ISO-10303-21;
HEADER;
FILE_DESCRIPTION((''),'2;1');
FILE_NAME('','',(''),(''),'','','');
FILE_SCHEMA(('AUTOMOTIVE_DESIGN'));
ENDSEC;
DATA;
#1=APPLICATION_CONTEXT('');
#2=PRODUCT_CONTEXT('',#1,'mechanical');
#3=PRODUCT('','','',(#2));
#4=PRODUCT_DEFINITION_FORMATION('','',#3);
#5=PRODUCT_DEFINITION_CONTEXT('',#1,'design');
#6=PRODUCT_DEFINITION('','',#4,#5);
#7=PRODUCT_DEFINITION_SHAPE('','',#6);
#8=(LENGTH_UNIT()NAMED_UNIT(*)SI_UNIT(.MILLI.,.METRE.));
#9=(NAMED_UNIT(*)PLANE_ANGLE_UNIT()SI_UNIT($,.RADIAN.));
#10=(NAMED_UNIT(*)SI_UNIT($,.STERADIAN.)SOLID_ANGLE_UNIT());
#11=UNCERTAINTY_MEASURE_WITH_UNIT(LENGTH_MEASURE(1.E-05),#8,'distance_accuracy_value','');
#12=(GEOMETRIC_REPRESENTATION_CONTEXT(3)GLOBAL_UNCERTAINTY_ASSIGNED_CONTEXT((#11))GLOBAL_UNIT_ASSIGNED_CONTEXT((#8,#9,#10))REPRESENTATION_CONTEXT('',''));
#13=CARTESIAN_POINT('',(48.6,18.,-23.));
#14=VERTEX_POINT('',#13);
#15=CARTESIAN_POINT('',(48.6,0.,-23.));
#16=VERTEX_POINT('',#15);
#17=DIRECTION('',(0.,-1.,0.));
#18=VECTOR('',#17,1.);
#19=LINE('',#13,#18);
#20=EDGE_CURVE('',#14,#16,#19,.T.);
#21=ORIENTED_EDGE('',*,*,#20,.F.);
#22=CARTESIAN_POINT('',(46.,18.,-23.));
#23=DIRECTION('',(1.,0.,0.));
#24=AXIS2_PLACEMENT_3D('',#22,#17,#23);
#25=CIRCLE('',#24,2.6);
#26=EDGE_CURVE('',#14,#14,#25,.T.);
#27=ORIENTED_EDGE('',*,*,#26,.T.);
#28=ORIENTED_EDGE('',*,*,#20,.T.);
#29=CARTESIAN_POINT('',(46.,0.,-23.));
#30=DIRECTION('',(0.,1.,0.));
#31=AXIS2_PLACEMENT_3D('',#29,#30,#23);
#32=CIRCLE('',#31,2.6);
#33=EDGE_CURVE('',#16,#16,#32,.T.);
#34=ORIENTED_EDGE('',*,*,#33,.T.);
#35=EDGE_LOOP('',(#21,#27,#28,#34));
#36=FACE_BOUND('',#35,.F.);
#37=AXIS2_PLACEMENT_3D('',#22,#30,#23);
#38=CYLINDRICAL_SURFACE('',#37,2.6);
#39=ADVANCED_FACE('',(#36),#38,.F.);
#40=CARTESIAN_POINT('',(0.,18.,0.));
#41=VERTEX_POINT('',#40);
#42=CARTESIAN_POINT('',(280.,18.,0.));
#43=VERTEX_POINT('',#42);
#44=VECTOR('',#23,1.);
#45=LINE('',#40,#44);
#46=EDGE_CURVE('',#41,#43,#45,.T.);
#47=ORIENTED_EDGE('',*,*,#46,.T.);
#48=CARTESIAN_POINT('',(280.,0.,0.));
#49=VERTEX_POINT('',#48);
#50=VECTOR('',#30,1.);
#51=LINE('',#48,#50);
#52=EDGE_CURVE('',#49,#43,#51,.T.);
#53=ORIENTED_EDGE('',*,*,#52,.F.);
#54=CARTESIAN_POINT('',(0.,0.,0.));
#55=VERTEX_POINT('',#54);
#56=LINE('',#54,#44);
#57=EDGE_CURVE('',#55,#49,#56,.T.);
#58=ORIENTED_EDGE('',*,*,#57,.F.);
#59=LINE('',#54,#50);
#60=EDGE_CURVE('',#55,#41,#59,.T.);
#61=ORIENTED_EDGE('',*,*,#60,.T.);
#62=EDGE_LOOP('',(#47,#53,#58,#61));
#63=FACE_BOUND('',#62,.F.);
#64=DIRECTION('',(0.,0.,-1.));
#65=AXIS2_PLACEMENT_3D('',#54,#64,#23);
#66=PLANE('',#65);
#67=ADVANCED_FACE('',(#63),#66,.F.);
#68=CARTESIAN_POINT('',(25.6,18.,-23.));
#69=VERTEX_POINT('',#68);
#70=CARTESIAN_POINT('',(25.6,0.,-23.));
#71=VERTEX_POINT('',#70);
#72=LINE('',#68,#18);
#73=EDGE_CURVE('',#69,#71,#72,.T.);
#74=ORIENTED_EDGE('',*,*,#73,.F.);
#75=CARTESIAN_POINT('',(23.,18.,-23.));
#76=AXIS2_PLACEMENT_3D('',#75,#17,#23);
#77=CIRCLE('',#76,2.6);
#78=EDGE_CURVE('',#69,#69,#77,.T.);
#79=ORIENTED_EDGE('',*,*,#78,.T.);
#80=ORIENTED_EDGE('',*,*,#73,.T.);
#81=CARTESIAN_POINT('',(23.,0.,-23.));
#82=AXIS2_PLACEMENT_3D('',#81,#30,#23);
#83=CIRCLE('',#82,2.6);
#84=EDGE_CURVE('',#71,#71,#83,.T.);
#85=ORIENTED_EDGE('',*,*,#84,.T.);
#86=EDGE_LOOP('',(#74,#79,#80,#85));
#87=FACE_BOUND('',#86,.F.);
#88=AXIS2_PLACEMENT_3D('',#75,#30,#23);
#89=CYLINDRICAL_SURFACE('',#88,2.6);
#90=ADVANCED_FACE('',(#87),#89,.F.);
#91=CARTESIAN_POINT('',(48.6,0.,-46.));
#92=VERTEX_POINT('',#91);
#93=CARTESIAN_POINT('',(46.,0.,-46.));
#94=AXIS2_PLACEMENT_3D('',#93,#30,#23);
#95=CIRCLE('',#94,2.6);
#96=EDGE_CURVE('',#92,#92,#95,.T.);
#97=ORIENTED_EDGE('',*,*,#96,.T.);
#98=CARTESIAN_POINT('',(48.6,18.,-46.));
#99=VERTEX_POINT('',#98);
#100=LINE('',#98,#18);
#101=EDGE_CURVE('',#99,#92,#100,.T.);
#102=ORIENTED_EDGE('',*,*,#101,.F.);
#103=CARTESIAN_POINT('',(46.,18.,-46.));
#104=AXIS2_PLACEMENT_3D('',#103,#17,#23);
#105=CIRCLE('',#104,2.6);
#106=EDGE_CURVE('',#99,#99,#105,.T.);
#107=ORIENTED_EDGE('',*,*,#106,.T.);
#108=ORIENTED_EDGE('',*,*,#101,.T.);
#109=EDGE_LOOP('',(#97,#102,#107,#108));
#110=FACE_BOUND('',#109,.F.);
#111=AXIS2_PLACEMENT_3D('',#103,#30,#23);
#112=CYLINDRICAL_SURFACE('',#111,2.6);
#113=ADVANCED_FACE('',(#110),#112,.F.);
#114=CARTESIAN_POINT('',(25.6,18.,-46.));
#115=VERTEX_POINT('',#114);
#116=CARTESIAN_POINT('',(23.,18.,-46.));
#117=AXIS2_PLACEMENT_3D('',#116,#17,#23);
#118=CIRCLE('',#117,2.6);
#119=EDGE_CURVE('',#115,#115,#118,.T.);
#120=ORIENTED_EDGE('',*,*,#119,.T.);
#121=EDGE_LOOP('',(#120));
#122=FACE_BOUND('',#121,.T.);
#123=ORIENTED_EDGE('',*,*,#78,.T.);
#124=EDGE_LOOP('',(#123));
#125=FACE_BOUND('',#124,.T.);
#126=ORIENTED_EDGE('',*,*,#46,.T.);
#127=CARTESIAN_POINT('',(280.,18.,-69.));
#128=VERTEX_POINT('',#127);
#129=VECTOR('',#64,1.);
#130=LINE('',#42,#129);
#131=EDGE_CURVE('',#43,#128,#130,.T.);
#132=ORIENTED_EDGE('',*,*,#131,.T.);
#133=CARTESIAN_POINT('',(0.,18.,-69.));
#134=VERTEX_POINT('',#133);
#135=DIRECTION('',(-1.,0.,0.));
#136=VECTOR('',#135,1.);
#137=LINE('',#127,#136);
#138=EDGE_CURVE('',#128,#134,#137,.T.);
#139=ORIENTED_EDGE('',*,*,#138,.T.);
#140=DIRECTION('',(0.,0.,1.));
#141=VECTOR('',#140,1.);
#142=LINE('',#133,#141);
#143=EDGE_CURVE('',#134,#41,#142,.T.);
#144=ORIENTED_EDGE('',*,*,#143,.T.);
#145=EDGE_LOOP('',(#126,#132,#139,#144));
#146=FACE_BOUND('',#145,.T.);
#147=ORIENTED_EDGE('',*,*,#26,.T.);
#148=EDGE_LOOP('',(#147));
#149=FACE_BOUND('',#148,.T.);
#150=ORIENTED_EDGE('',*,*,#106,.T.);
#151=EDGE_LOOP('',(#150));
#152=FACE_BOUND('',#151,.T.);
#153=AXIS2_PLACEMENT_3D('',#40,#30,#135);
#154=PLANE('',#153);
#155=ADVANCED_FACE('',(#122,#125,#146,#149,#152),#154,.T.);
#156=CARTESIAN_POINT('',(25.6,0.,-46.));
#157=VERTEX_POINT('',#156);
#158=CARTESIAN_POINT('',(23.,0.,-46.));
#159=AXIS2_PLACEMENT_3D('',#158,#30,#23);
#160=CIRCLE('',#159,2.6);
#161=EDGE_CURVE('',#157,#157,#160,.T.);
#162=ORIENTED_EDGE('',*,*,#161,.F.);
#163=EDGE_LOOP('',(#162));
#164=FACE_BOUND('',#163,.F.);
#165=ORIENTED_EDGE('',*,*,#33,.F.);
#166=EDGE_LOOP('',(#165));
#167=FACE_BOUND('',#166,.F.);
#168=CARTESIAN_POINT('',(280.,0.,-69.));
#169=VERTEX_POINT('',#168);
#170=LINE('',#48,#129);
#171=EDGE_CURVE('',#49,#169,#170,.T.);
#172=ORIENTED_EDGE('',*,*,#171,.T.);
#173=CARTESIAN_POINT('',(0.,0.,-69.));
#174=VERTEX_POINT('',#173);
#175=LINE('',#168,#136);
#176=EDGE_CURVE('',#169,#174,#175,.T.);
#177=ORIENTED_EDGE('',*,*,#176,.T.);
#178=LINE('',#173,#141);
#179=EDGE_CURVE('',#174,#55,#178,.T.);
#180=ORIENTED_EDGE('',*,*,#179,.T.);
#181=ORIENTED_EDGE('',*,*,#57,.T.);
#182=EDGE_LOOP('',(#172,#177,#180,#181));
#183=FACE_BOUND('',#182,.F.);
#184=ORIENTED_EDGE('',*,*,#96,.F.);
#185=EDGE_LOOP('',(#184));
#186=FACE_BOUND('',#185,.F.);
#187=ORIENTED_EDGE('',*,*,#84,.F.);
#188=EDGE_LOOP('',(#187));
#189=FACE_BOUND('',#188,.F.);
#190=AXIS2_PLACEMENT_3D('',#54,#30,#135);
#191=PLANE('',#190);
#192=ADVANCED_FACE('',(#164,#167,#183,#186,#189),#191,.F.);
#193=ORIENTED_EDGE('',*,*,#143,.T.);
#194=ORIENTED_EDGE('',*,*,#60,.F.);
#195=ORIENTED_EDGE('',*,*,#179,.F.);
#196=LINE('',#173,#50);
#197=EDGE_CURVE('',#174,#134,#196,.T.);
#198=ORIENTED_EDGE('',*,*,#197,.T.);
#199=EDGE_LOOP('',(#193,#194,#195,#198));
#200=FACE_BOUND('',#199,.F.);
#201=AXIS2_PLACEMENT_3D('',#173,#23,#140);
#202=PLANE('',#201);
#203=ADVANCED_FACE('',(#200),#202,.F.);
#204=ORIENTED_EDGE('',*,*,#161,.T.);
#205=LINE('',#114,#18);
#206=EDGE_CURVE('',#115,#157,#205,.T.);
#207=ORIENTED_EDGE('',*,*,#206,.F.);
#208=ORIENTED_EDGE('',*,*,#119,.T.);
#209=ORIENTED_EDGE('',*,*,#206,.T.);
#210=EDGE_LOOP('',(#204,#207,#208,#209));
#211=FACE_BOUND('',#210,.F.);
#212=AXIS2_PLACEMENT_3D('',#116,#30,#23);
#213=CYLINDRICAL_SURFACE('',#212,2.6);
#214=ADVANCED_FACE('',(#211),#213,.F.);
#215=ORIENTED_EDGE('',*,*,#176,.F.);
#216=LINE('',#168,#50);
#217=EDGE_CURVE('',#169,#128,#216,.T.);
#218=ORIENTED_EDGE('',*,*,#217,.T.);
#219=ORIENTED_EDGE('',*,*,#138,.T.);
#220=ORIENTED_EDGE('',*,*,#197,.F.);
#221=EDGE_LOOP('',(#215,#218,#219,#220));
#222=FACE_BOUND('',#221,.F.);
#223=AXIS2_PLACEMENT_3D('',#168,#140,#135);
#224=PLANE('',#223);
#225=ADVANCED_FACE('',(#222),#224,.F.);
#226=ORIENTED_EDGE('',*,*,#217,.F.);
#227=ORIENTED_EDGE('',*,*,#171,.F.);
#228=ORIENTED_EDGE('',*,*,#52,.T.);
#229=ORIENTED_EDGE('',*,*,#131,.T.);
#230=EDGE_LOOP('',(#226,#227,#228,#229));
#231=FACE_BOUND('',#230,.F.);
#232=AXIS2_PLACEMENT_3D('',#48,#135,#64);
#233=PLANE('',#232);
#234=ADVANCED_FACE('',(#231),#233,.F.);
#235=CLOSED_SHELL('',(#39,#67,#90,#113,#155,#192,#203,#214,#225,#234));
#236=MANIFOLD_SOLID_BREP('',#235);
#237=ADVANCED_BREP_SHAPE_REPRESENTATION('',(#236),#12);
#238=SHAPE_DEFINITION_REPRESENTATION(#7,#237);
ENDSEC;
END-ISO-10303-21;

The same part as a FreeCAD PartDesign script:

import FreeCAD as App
import Part
import Sketcher


def add_polygon(sketch, points):
    """Adds a closed chain of lines whose ends are joined by coincident constraints."""
    first, n = sketch.GeometryCount, len(points)
    for a, b in zip(points, points[1:] + points[:1]):
        sketch.addGeometry(Part.LineSegment(App.Vector(*a, 0), App.Vector(*b, 0)), False)
    for i in range(n):
        sketch.addConstraint(Sketcher.Constraint("Coincident", first + i, 2, first + (i + 1) % n, 1))

doc = App.newDocument("Part")
body = doc.addObject("PartDesign::Body", "Body")

# Sketch on XZ plane
sketch1 = body.newObject("Sketcher::SketchObject", "Sketch")
sketch1.AttachmentSupport = (doc.getObject("XZ_Plane"), [""])
sketch1.MapMode = "FlatFace"
add_polygon(sketch1, [(0, -69), (0, 0), (280, 0), (280, -69)])  # lines 0-3
sketch1.addConstraint([
    Sketcher.Constraint("Vertical", 0),
    Sketcher.Constraint("Horizontal", 1),
    Sketcher.Constraint("Vertical", 2),
    Sketcher.Constraint("Horizontal", 3),
    Sketcher.Constraint("Coincident", 0, 2, -1, 1),
    Sketcher.Constraint("DistanceX", 1, 1, 1, 2, 280.0),
    Sketcher.Constraint("DistanceY", 0, 1, 0, 2, 69.0),
])
pad1 = body.newObject("PartDesign::Pad", "Pad")
pad1.Profile = sketch1
pad1.Length = 18
pad1.Reversed = True

# Sketch on XZ plane
sketch2 = body.newObject("Sketcher::SketchObject", "Sketch001")
sketch2.AttachmentSupport = (doc.getObject("XZ_Plane"), [""])
sketch2.MapMode = "FlatFace"
sketch2.AttachmentOffset = App.Placement(App.Vector(0, 0, -18), App.Rotation())
sketch2.addGeometry([
    Part.Circle(App.Vector(23, -23, 0), App.Vector(0, 0, 1), 2.6),
    Part.Circle(App.Vector(23, -46, 0), App.Vector(0, 0, 1), 2.6),
    Part.Circle(App.Vector(46, -46, 0), App.Vector(0, 0, 1), 2.6),
    Part.Circle(App.Vector(46, -23, 0), App.Vector(0, 0, 1), 2.6),
], False)
sketch2.addConstraint([
    Sketcher.Constraint("Equal", 0, 1),
    Sketcher.Constraint("Equal", 1, 2),
    Sketcher.Constraint("Equal", 2, 3),
    Sketcher.Constraint("Horizontal", 1, 3, 2, 3),
    Sketcher.Constraint("Horizontal", 0, 3, 3, 3),
    Sketcher.Constraint("Vertical", 0, 3, 1, 3),
    Sketcher.Constraint("Vertical", 2, 3, 3, 3),
    Sketcher.Constraint("Diameter", 0, 5.2),
    Sketcher.Constraint("DistanceX", -1, 1, 0, 3, 23.0),
    Sketcher.Constraint("DistanceY", 0, 3, -1, 1, 23.0),
    Sketcher.Constraint("DistanceY", 1, 3, 0, 3, 23.0),
    Sketcher.Constraint("DistanceX", 1, 3, 2, 3, 23.0),
])
pocket1 = body.newObject("PartDesign::Pocket", "Pocket")
pocket1.Profile = sketch2
pocket1.Type = "ThroughAll"
pocket1.Reversed = True

doc.recompute()
